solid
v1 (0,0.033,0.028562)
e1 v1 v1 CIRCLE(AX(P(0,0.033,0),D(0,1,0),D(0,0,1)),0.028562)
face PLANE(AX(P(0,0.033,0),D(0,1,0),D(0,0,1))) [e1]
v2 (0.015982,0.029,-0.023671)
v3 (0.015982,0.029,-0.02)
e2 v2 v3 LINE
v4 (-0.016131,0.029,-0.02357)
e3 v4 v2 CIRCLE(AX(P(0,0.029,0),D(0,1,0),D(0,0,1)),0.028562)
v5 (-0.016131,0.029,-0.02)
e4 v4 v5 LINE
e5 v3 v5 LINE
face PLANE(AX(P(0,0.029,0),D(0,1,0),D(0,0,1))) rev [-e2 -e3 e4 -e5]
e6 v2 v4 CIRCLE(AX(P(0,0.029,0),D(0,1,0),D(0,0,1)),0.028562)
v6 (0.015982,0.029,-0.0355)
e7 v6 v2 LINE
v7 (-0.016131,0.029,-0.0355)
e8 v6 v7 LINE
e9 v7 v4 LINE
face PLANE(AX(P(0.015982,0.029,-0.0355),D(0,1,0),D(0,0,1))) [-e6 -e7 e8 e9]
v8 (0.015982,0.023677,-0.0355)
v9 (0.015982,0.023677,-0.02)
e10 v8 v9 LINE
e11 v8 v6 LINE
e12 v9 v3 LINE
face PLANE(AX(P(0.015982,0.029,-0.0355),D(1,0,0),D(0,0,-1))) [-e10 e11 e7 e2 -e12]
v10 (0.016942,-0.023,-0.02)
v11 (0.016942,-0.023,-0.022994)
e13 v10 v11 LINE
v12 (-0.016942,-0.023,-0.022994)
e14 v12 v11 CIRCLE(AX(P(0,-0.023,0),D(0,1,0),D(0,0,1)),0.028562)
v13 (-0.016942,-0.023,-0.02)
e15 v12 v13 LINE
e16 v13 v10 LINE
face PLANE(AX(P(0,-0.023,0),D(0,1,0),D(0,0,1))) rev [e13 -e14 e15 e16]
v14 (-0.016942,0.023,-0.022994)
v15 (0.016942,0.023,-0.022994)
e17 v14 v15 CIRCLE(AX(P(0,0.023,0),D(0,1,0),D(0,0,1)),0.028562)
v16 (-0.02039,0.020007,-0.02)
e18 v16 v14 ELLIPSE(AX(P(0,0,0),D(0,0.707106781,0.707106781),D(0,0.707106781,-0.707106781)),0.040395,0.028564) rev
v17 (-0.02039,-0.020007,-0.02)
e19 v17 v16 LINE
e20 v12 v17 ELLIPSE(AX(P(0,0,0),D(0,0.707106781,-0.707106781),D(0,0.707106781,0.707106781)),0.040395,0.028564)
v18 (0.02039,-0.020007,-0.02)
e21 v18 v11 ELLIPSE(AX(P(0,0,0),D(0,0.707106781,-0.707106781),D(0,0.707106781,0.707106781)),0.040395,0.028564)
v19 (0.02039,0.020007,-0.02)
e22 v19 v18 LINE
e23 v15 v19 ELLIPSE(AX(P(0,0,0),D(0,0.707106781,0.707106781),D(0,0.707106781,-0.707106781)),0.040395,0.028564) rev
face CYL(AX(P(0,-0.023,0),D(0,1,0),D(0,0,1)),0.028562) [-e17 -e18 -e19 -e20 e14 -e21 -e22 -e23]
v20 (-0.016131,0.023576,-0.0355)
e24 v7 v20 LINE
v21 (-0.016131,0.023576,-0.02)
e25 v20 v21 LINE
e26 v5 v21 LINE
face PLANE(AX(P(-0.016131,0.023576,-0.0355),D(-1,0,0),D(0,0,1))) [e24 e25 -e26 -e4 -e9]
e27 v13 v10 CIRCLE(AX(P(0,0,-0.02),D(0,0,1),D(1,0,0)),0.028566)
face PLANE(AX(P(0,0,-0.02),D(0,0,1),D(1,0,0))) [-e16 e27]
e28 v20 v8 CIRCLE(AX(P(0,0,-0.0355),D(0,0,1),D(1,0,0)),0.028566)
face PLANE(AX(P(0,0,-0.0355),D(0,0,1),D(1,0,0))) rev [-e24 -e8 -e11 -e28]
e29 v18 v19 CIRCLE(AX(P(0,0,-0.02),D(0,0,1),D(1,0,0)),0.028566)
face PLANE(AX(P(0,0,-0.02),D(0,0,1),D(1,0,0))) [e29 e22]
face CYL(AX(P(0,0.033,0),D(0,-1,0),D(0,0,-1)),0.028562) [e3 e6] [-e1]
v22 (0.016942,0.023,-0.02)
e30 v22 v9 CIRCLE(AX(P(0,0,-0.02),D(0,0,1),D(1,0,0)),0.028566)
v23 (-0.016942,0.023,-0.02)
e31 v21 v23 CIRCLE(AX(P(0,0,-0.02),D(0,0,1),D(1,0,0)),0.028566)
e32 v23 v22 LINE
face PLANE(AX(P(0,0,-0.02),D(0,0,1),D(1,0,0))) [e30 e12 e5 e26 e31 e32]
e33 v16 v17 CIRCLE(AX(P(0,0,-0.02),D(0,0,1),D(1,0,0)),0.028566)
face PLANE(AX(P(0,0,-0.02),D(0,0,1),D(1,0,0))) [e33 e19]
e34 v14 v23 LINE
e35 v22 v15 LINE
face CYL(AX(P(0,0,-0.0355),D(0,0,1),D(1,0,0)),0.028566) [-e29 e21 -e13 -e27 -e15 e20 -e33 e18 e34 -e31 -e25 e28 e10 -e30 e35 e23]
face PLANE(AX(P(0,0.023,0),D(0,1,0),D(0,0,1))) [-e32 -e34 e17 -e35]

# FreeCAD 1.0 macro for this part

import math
import FreeCAD as App
import Part
import Sketcher
from FreeCAD import Vector
Q = App.Units.Quantity

doc = App.newDocument("Part")
body = doc.addObject("PartDesign::Body", "Body")

# Sketch on XZ plane
sketch1 = body.newObject("Sketcher::SketchObject", "Sketch")
sketch1.AttachmentSupport = (doc.getObject("XZ_Plane"), [""])
sketch1.MapMode = "FlatFace"
sketch1.addGeometry(Part.Circle(Vector(0, 0, 0), Vector(0, 0, 1), 0.029), False)
sketch1.addConstraint([
    Sketcher.Constraint("Coincident", 0, 3, -1, 1),
    Sketcher.Constraint("Diameter", 0, Q("0.057123 mm")),
])
pad1 = body.newObject("PartDesign::Pad", "Pad")
pad1.Profile = sketch1
pad1.Type = "TwoLengths"
pad1.Length = 0.023
pad1.Length2 = 0.023
pad1.Reversed = True
body2 = doc.addObject("PartDesign::Body", "Body001")

# Sketch on XZ plane
sketch2 = body2.newObject("Sketcher::SketchObject", "Sketch001")
sketch2.AttachmentSupport = (doc.getObject("XZ_Plane001"), [""])
sketch2.MapMode = "FlatFace"
sketch2.AttachmentOffset = App.Placement(Vector(0, 0, -0.029), App.Rotation())
sketch2.addGeometry(Part.Circle(Vector(0, 0, 0), Vector(0, 0, 1), 0.029), False)
sketch2.addConstraint([
    Sketcher.Constraint("Coincident", 0, 3, -1, 1),
    Sketcher.Constraint("Diameter", 0, Q("0.057123 mm")),
])
pad2 = body2.newObject("PartDesign::Pad", "Pad001")
pad2.Profile = sketch2
pad2.Length = 0.004
pad2.Reversed = True
body.AllowCompound = True
doc.recompute()

boolean = body.newObject("PartDesign::Boolean", "Boolean")
boolean.Type = "Fuse"
boolean.addObjects([body2])

# Sketch on XY plane
sketch3 = body.newObject("Sketcher::SketchObject", "Sketch002")
sketch3.AttachmentSupport = (doc.getObject("XY_Plane"), [""])
sketch3.MapMode = "FlatFace"
sketch3.AttachmentOffset = App.Placement(Vector(0, 0, -0.02), App.Rotation())
sketch3.addGeometry([
    Part.LineSegment(Vector(-0.016, 0.029, 0), Vector(-0.016, 0.024, 0)),
    Part.ArcOfCircle(Part.Circle(Vector(0, 0, 0), Vector(0, 0, 1), 0.029), math.radians(124), math.radians(416)),
    Part.LineSegment(Vector(0.016, 0.024, 0), Vector(0.016, 0.029, 0)),
    Part.LineSegment(Vector(0.016, 0.029, 0), Vector(-0.016, 0.029, 0)),
], False)
sketch3.addConstraint([
    Sketcher.Constraint("Coincident", 0, 2, 1, 1),
    Sketcher.Constraint("Coincident", 1, 2, 2, 1),
    Sketcher.Constraint("Coincident", 2, 2, 3, 1),
    Sketcher.Constraint("Coincident", 3, 2, 0, 1),
    Sketcher.Constraint("Vertical", 0),
    Sketcher.Constraint("Vertical", 2),
    Sketcher.Constraint("Horizontal", 3),
    Sketcher.Constraint("Coincident", 1, 3, -1, 1),
    Sketcher.Constraint("DistanceY", -1, 1, 2, 2, Q("0.029 mm")),
    Sketcher.Constraint("Radius", 1, Q("0.028566 mm")),
    Sketcher.Constraint("DistanceY", 0, 2, 1, 2, Q("0.000101 mm")),
    Sketcher.Constraint("DistanceX", 3, 2, 3, 1, Q("0.032114 mm")),
])
pad3 = body.newObject("PartDesign::Pad", "Pad002")
pad3.Profile = sketch3
pad3.Length = 0.0155
pad3.Reversed = True

doc.recompute()
